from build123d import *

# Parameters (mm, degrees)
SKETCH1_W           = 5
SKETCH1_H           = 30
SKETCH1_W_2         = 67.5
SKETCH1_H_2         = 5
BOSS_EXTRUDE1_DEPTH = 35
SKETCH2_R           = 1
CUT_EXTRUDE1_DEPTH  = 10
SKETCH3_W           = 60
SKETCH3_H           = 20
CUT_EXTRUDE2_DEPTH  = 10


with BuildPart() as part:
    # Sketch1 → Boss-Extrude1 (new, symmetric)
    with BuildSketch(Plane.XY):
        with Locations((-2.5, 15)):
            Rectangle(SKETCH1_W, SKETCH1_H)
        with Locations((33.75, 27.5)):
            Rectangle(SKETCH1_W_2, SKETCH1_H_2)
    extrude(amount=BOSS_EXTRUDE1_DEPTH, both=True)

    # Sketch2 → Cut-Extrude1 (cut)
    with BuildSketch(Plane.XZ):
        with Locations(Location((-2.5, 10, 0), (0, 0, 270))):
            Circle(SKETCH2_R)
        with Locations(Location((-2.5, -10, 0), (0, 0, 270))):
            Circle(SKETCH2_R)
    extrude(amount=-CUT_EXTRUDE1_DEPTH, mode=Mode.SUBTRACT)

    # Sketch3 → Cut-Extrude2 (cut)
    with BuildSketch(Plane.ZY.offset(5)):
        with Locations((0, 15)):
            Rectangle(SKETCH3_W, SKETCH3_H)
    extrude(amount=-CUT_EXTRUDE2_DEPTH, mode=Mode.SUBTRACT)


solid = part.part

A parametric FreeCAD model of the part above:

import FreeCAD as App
import Part
import Sketcher

V = App.Vector
Q = App.Units.Quantity

doc = App.newDocument("Part")
body = doc.addObject("PartDesign::Body", "Body")

# Sketch on XY plane
sketch1 = body.newObject("Sketcher::SketchObject", "Sketch")
sketch1.AttachmentSupport = (doc.getObject("XY_Plane"), [""])
sketch1.MapMode = "FlatFace"
sketch1.addGeometry(Part.LineSegment(V(-5, 30, 0), V(-5, 0, 0)), False)
sketch1.addGeometry(Part.LineSegment(V(-5, 0, 0), V(0, 0, 0)), False)
sketch1.addGeometry(Part.LineSegment(V(0, 0, 0), V(0, 25, 0)), False)
sketch1.addGeometry(Part.LineSegment(V(0, 25, 0), V(68, 25, 0)), False)
sketch1.addGeometry(Part.LineSegment(V(68, 25, 0), V(68, 30, 0)), False)
sketch1.addGeometry(Part.LineSegment(V(68, 30, 0), V(-5, 30, 0)), False)
sketch1.addConstraint(Sketcher.Constraint("Coincident", 0, 2, 1, 1))
sketch1.addConstraint(Sketcher.Constraint("Coincident", 1, 2, 2, 1))
sketch1.addConstraint(Sketcher.Constraint("Coincident", 2, 2, 3, 1))
sketch1.addConstraint(Sketcher.Constraint("Coincident", 3, 2, 4, 1))
sketch1.addConstraint(Sketcher.Constraint("Coincident", 4, 2, 5, 1))
sketch1.addConstraint(Sketcher.Constraint("Coincident", 5, 2, 0, 1))
sketch1.addConstraint(Sketcher.Constraint("Vertical", 0))
sketch1.addConstraint(Sketcher.Constraint("Horizontal", 1))
sketch1.addConstraint(Sketcher.Constraint("Vertical", 2))
sketch1.addConstraint(Sketcher.Constraint("Horizontal", 3))
sketch1.addConstraint(Sketcher.Constraint("Vertical", 4))
sketch1.addConstraint(Sketcher.Constraint("Horizontal", 5))
sketch1.addConstraint(Sketcher.Constraint("Coincident", 1, 2, -1, 1))
sketch1.addConstraint(Sketcher.Constraint("Equal", 1, 4))
sketch1.addConstraint(Sketcher.Constraint("DistanceX", 1, 1, 1, 2, Q("5 mm")))
sketch1.addConstraint(Sketcher.Constraint("DistanceY", 0, 2, 0, 1, Q("30 mm")))
sketch1.addConstraint(Sketcher.Constraint("DistanceX", 3, 1, 3, 2, Q("67.5 mm")))
pad1 = body.newObject("PartDesign::Pad", "Pad")
pad1.Profile = sketch1
pad1.Length = 70
pad1.Midplane = True

# Sketch on XZ plane
sketch2 = body.newObject("Sketcher::SketchObject", "Sketch001")
sketch2.AttachmentSupport = (doc.getObject("XZ_Plane"), [""])
sketch2.MapMode = "FlatFace"
sketch2.addGeometry(Part.Circle(V(-2.5, 10, 0), V(0, 0, 1), 1), False)
sketch2.addGeometry(Part.Circle(V(-2.5, -10, 0), V(0, 0, 1), 1), False)
sketch2.addConstraint(Sketcher.Constraint("Equal", 0, 1))
sketch2.addConstraint(Sketcher.Constraint("Symmetric", 0, 3, 1, 3, -1))
sketch2.addConstraint(Sketcher.Constraint("Diameter", 0, Q("2 mm")))
sketch2.addConstraint(Sketcher.Constraint("DistanceY", -1, 1, 0, 3, Q("10 mm")))
sketch2.addConstraint(Sketcher.Constraint("DistanceX", 0, 3, -1, 1, Q("2.5 mm")))
pocket1 = body.newObject("PartDesign::Pocket", "Pocket")
pocket1.Profile = sketch2
pocket1.Length = 10

# Sketch on YZ plane
sketch3 = body.newObject("Sketcher::SketchObject", "Sketch002")
sketch3.AttachmentSupport = (doc.getObject("YZ_Plane"), [""])
sketch3.MapMode = "FlatFace"
sketch3.AttachmentOffset = App.Placement(V(0, 0, -5), App.Rotation())
sketch3.addGeometry(Part.LineSegment(V(25, -30, 0), V(5, -30, 0)), False)
sketch3.addGeometry(Part.LineSegment(V(5, -30, 0), V(5, 30, 0)), False)
sketch3.addGeometry(Part.LineSegment(V(5, 30, 0), V(25, 30, 0)), False)
sketch3.addGeometry(Part.LineSegment(V(25, 30, 0), V(25, -30, 0)), False)
sketch3.addConstraint(Sketcher.Constraint("Coincident", 0, 2, 1, 1))
sketch3.addConstraint(Sketcher.Constraint("Coincident", 1, 2, 2, 1))
sketch3.addConstraint(Sketcher.Constraint("Coincident", 2, 2, 3, 1))
sketch3.addConstraint(Sketcher.Constraint("Coincident", 3, 2, 0, 1))
sketch3.addConstraint(Sketcher.Constraint("Horizontal", 0))
sketch3.addConstraint(Sketcher.Constraint("Vertical", 1))
sketch3.addConstraint(Sketcher.Constraint("Horizontal", 2))
sketch3.addConstraint(Sketcher.Constraint("Vertical", 3))
sketch3.addConstraint(Sketcher.Constraint("DistanceX", 0, 2, 0, 1, Q("20 mm")))
sketch3.addConstraint(Sketcher.Constraint("DistanceY", 1, 1, 1, 2, Q("60 mm")))
sketch3.addConstraint(Sketcher.Constraint("DistanceX", -1, 1, 0, 2, Q("5 mm")))
sketch3.addConstraint(Sketcher.Constraint("DistanceY", 0, 2, -1, 1, Q("30 mm")))
pocket2 = body.newObject("PartDesign::Pocket", "Pocket001")
pocket2.Profile = sketch3
pocket2.Length = 10
pocket2.Reversed = True

doc.recompute()
